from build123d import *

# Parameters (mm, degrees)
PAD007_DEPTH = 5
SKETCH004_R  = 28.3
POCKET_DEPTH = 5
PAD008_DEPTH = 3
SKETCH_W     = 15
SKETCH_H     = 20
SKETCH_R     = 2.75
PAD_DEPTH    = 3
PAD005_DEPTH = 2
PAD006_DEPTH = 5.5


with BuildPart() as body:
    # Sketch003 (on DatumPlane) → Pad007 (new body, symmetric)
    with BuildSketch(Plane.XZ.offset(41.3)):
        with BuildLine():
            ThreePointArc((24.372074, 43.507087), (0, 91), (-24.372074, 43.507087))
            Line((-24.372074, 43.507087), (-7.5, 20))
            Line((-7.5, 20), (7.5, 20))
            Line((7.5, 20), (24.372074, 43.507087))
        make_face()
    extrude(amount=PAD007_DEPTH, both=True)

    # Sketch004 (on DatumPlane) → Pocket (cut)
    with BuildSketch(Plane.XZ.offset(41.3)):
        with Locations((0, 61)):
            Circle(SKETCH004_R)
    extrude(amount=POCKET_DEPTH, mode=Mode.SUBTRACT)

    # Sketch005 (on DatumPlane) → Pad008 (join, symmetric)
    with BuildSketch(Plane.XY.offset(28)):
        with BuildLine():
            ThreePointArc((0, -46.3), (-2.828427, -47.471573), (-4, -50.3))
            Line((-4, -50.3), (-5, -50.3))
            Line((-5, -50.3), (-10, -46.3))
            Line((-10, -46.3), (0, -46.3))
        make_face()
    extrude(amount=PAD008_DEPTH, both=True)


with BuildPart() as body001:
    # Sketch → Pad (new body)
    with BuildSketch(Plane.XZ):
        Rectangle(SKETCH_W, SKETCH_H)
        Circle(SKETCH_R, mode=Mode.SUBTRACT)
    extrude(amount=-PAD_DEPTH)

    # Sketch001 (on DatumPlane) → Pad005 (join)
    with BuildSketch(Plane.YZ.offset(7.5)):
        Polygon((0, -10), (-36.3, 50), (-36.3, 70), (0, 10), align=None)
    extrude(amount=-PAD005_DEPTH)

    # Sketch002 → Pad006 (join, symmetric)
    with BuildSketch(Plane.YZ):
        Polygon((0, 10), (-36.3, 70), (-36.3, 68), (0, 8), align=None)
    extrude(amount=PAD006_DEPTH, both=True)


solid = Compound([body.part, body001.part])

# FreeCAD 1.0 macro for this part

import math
import FreeCAD as App
import Part
import Sketcher

V = App.Vector
Q = App.Units.Quantity


def add_polygon(sketch, points):
    """Adds a closed chain of lines whose ends are joined by coincident constraints."""
    first, n = sketch.GeometryCount, len(points)
    for a, b in zip(points, points[1:] + points[:1]):
        sketch.addGeometry(Part.LineSegment(App.Vector(*a, 0), App.Vector(*b, 0)), False)
    for i in range(n):
        sketch.addConstraint(Sketcher.Constraint("Coincident", first + i, 2, first + (i + 1) % n, 1))

doc = App.newDocument("Part")
body = doc.addObject("PartDesign::Body", "Body")

sketch1 = body.newObject("Sketcher::SketchObject", "Sketch")
sketch1.AttachmentSupport = (doc.getObject("XZ_Plane"), [""])
sketch1.MapMode = "FlatFace"
sketch1.AttachmentOffset = App.Placement(V(0, 0, 41.3), App.Rotation())
sketch1.addGeometry(Part.ArcOfCircle(Part.Circle(V(0, 61, 0), V(0, 0, 1), 30), math.radians(-36), math.radians(216)), False)
sketch1.addGeometry(Part.LineSegment(V(-24, 44, 0), V(-8, 20, 0)), False)
sketch1.addGeometry(Part.LineSegment(V(-8, 20, 0), V(8, 20, 0)), False)
sketch1.addGeometry(Part.LineSegment(V(8, 20, 0), V(24, 44, 0)), False)
sketch1.addConstraint(Sketcher.Constraint("Tangent", 0, 2, 1, 1))
sketch1.addConstraint(Sketcher.Constraint("Coincident", 1, 2, 2, 1))
sketch1.addConstraint(Sketcher.Constraint("Coincident", 2, 2, 3, 1))
sketch1.addConstraint(Sketcher.Constraint("Tangent", 3, 2, 0, 1))
sketch1.addConstraint(Sketcher.Constraint("Horizontal", 2))
sketch1.addConstraint(Sketcher.Constraint("Symmetric", 0, 2, 3, 2, -2))
sketch1.addConstraint(Sketcher.Constraint("Radius", 0, Q("30 mm")))
sketch1.addConstraint(Sketcher.Constraint("DistanceX", 2, 1, 2, 2, Q("15 mm")))
sketch1.addConstraint(Sketcher.Constraint("DistanceY", -1, 1, 0, 3, Q("61 mm")))
sketch1.addConstraint(Sketcher.Constraint("DistanceY", -1, 1, 1, 2, Q("20 mm")))
pad1 = body.newObject("PartDesign::Pad", "Pad")
pad1.Profile = sketch1
pad1.Length = 10
pad1.Midplane = True

sketch2 = body.newObject("Sketcher::SketchObject", "Sketch001")
sketch2.AttachmentSupport = (doc.getObject("XZ_Plane"), [""])
sketch2.MapMode = "FlatFace"
sketch2.AttachmentOffset = App.Placement(V(0, 0, 41.3), App.Rotation())
sketch2.addGeometry(Part.Circle(V(0, 61, 0), V(0, 0, 1), 28), False)
sketch2.addConstraint(Sketcher.Constraint("PointOnObject", 0, 3, -2))
sketch2.addConstraint(Sketcher.Constraint("Diameter", 0, Q("56.6 mm")))
sketch2.addConstraint(Sketcher.Constraint("DistanceY", -1, 1, 0, 3, Q("61 mm")))
pocket1 = body.newObject("PartDesign::Pocket", "Pocket")
pocket1.Profile = sketch2
pocket1.Length = 5
pocket1.Reversed = True

sketch3 = body.newObject("Sketcher::SketchObject", "Sketch002")
sketch3.AttachmentSupport = (doc.getObject("XY_Plane"), [""])
sketch3.MapMode = "FlatFace"
sketch3.AttachmentOffset = App.Placement(V(0, 0, 28), App.Rotation())
sketch3.addGeometry(Part.ArcOfCircle(Part.Circle(V(0, -50.3, 0), V(0, 0, 1), 4), math.radians(90), math.radians(180)), False)
sketch3.addGeometry(Part.LineSegment(V(0, -46.3, 0), V(-10, -46.3, 0)), False)
sketch3.addGeometry(Part.LineSegment(V(-10, -46.3, 0), V(-5, -50.3, 0)), False)
sketch3.addGeometry(Part.LineSegment(V(-5, -50.3, 0), V(-4, -50.3, 0)), False)
sketch3.addConstraint(Sketcher.Constraint("Tangent", 0, 1, 1, 1))
sketch3.addConstraint(Sketcher.Constraint("Coincident", 1, 2, 2, 1))
sketch3.addConstraint(Sketcher.Constraint("Coincident", 2, 2, 3, 1))
sketch3.addConstraint(Sketcher.Constraint("Coincident", 3, 2, 0, 2))
sketch3.addConstraint(Sketcher.Constraint("Horizontal", 1))
sketch3.addConstraint(Sketcher.Constraint("Horizontal", 3))
sketch3.addConstraint(Sketcher.Constraint("PointOnObject", 0, 3, -2))
sketch3.addConstraint(Sketcher.Constraint("Horizontal", 0, 3, 2, 2))
sketch3.addConstraint(Sketcher.Constraint("Radius", 0, Q("4 mm")))
sketch3.addConstraint(Sketcher.Constraint("DistanceX", 1, 2, 1, 1, Q("10 mm")))
sketch3.addConstraint(Sketcher.Constraint("DistanceX", 3, 1, 3, 2, Q("1 mm")))
sketch3.addConstraint(Sketcher.Constraint("DistanceY", 0, 3, -1, 1, Q("50.3 mm")))
pad2 = body.newObject("PartDesign::Pad", "Pad001")
pad2.Profile = sketch3
pad2.Length = 6
pad2.Midplane = True
body2 = doc.addObject("PartDesign::Body", "Body001")

sketch4 = body2.newObject("Sketcher::SketchObject", "Sketch003")
sketch4.AttachmentSupport = (doc.getObject("XZ_Plane001"), [""])
sketch4.MapMode = "FlatFace"
add_polygon(sketch4, [(-7.5, 10), (-7.5, -10), (7.5, -10), (7.5, 10)])
sketch4.addGeometry(Part.Circle(V(0, 0, 0), V(0, 0, 1), 2.8), False)
sketch4.addConstraint(Sketcher.Constraint("Vertical", 0))
sketch4.addConstraint(Sketcher.Constraint("Horizontal", 1))
sketch4.addConstraint(Sketcher.Constraint("Vertical", 2))
sketch4.addConstraint(Sketcher.Constraint("Horizontal", 3))
sketch4.addConstraint(Sketcher.Constraint("Coincident", 4, 3, -1, 1))
sketch4.addConstraint(Sketcher.Constraint("Symmetric", 0, 2, 2, 2, -1, 1))
sketch4.addConstraint(Sketcher.Constraint("Diameter", 4, Q("5.5 mm")))
sketch4.addConstraint(Sketcher.Constraint("DistanceX", 1, 1, 1, 2, Q("15 mm")))
sketch4.addConstraint(Sketcher.Constraint("DistanceY", 0, 2, 0, 1, Q("20 mm")))
pad3 = body2.newObject("PartDesign::Pad", "Pad002")
pad3.Profile = sketch4
pad3.Length = 3
pad3.Reversed = True

sketch5 = body2.newObject("Sketcher::SketchObject", "Sketch004")
sketch5.AttachmentSupport = (doc.getObject("YZ_Plane001"), [""])
sketch5.MapMode = "FlatFace"
sketch5.AttachmentOffset = App.Placement(V(0, 0, 7.5), App.Rotation())
add_polygon(sketch5, [(-36, 50), (0, -10), (0, 10), (-36, 70)])
sketch5.addConstraint(Sketcher.Constraint("Vertical", 1))
sketch5.addConstraint(Sketcher.Constraint("Vertical", 3))
sketch5.addConstraint(Sketcher.Constraint("Symmetric", 0, 2, 1, 2, -1, 1))
sketch5.addConstraint(Sketcher.Constraint("Parallel", 0, 2))
sketch5.addConstraint(Sketcher.Constraint("DistanceY", 1, 1, 1, 2, Q("20 mm")))
sketch5.addConstraint(Sketcher.Constraint("DistanceY", -1, 1, 2, 2, Q("70 mm")))
sketch5.addConstraint(Sketcher.Constraint("DistanceX", 2, 2, -1, 1, Q("36.3 mm")))
pad4 = body2.newObject("PartDesign::Pad", "Pad003")
pad4.Profile = sketch5
pad4.Length = 2
pad4.Reversed = True

sketch6 = body2.newObject("Sketcher::SketchObject", "Sketch005")
sketch6.AttachmentSupport = (doc.getObject("YZ_Plane001"), [""])
sketch6.MapMode = "FlatFace"
add_polygon(sketch6, [(0, 10), (-36.3, 70), (-36.3, 68), (0, 8)])
sketch6.addConstraint(Sketcher.Constraint("Vertical", 1))
sketch6.addConstraint(Sketcher.Constraint("Vertical", 3))
sketch6.addConstraint(Sketcher.Constraint("PointOnObject", 2, 2, -2))
sketch6.addConstraint(Sketcher.Constraint("Parallel", 0, 2))
sketch6.addConstraint(Sketcher.Constraint("DistanceY", 1, 2, 1, 1, Q("2 mm")))
sketch6.addConstraint(Sketcher.Constraint("DistanceY", -1, 1, 0, 2, Q("70 mm")))
sketch6.addConstraint(Sketcher.Constraint("DistanceY", -1, 1, 2, 2, Q("8 mm")))
sketch6.addConstraint(Sketcher.Constraint("DistanceX", 0, 2, -1, 1, Q("36.3 mm")))
pad5 = body2.newObject("PartDesign::Pad", "Pad004")
pad5.Profile = sketch6
pad5.Length = 11
pad5.Midplane = True

doc.recompute()
